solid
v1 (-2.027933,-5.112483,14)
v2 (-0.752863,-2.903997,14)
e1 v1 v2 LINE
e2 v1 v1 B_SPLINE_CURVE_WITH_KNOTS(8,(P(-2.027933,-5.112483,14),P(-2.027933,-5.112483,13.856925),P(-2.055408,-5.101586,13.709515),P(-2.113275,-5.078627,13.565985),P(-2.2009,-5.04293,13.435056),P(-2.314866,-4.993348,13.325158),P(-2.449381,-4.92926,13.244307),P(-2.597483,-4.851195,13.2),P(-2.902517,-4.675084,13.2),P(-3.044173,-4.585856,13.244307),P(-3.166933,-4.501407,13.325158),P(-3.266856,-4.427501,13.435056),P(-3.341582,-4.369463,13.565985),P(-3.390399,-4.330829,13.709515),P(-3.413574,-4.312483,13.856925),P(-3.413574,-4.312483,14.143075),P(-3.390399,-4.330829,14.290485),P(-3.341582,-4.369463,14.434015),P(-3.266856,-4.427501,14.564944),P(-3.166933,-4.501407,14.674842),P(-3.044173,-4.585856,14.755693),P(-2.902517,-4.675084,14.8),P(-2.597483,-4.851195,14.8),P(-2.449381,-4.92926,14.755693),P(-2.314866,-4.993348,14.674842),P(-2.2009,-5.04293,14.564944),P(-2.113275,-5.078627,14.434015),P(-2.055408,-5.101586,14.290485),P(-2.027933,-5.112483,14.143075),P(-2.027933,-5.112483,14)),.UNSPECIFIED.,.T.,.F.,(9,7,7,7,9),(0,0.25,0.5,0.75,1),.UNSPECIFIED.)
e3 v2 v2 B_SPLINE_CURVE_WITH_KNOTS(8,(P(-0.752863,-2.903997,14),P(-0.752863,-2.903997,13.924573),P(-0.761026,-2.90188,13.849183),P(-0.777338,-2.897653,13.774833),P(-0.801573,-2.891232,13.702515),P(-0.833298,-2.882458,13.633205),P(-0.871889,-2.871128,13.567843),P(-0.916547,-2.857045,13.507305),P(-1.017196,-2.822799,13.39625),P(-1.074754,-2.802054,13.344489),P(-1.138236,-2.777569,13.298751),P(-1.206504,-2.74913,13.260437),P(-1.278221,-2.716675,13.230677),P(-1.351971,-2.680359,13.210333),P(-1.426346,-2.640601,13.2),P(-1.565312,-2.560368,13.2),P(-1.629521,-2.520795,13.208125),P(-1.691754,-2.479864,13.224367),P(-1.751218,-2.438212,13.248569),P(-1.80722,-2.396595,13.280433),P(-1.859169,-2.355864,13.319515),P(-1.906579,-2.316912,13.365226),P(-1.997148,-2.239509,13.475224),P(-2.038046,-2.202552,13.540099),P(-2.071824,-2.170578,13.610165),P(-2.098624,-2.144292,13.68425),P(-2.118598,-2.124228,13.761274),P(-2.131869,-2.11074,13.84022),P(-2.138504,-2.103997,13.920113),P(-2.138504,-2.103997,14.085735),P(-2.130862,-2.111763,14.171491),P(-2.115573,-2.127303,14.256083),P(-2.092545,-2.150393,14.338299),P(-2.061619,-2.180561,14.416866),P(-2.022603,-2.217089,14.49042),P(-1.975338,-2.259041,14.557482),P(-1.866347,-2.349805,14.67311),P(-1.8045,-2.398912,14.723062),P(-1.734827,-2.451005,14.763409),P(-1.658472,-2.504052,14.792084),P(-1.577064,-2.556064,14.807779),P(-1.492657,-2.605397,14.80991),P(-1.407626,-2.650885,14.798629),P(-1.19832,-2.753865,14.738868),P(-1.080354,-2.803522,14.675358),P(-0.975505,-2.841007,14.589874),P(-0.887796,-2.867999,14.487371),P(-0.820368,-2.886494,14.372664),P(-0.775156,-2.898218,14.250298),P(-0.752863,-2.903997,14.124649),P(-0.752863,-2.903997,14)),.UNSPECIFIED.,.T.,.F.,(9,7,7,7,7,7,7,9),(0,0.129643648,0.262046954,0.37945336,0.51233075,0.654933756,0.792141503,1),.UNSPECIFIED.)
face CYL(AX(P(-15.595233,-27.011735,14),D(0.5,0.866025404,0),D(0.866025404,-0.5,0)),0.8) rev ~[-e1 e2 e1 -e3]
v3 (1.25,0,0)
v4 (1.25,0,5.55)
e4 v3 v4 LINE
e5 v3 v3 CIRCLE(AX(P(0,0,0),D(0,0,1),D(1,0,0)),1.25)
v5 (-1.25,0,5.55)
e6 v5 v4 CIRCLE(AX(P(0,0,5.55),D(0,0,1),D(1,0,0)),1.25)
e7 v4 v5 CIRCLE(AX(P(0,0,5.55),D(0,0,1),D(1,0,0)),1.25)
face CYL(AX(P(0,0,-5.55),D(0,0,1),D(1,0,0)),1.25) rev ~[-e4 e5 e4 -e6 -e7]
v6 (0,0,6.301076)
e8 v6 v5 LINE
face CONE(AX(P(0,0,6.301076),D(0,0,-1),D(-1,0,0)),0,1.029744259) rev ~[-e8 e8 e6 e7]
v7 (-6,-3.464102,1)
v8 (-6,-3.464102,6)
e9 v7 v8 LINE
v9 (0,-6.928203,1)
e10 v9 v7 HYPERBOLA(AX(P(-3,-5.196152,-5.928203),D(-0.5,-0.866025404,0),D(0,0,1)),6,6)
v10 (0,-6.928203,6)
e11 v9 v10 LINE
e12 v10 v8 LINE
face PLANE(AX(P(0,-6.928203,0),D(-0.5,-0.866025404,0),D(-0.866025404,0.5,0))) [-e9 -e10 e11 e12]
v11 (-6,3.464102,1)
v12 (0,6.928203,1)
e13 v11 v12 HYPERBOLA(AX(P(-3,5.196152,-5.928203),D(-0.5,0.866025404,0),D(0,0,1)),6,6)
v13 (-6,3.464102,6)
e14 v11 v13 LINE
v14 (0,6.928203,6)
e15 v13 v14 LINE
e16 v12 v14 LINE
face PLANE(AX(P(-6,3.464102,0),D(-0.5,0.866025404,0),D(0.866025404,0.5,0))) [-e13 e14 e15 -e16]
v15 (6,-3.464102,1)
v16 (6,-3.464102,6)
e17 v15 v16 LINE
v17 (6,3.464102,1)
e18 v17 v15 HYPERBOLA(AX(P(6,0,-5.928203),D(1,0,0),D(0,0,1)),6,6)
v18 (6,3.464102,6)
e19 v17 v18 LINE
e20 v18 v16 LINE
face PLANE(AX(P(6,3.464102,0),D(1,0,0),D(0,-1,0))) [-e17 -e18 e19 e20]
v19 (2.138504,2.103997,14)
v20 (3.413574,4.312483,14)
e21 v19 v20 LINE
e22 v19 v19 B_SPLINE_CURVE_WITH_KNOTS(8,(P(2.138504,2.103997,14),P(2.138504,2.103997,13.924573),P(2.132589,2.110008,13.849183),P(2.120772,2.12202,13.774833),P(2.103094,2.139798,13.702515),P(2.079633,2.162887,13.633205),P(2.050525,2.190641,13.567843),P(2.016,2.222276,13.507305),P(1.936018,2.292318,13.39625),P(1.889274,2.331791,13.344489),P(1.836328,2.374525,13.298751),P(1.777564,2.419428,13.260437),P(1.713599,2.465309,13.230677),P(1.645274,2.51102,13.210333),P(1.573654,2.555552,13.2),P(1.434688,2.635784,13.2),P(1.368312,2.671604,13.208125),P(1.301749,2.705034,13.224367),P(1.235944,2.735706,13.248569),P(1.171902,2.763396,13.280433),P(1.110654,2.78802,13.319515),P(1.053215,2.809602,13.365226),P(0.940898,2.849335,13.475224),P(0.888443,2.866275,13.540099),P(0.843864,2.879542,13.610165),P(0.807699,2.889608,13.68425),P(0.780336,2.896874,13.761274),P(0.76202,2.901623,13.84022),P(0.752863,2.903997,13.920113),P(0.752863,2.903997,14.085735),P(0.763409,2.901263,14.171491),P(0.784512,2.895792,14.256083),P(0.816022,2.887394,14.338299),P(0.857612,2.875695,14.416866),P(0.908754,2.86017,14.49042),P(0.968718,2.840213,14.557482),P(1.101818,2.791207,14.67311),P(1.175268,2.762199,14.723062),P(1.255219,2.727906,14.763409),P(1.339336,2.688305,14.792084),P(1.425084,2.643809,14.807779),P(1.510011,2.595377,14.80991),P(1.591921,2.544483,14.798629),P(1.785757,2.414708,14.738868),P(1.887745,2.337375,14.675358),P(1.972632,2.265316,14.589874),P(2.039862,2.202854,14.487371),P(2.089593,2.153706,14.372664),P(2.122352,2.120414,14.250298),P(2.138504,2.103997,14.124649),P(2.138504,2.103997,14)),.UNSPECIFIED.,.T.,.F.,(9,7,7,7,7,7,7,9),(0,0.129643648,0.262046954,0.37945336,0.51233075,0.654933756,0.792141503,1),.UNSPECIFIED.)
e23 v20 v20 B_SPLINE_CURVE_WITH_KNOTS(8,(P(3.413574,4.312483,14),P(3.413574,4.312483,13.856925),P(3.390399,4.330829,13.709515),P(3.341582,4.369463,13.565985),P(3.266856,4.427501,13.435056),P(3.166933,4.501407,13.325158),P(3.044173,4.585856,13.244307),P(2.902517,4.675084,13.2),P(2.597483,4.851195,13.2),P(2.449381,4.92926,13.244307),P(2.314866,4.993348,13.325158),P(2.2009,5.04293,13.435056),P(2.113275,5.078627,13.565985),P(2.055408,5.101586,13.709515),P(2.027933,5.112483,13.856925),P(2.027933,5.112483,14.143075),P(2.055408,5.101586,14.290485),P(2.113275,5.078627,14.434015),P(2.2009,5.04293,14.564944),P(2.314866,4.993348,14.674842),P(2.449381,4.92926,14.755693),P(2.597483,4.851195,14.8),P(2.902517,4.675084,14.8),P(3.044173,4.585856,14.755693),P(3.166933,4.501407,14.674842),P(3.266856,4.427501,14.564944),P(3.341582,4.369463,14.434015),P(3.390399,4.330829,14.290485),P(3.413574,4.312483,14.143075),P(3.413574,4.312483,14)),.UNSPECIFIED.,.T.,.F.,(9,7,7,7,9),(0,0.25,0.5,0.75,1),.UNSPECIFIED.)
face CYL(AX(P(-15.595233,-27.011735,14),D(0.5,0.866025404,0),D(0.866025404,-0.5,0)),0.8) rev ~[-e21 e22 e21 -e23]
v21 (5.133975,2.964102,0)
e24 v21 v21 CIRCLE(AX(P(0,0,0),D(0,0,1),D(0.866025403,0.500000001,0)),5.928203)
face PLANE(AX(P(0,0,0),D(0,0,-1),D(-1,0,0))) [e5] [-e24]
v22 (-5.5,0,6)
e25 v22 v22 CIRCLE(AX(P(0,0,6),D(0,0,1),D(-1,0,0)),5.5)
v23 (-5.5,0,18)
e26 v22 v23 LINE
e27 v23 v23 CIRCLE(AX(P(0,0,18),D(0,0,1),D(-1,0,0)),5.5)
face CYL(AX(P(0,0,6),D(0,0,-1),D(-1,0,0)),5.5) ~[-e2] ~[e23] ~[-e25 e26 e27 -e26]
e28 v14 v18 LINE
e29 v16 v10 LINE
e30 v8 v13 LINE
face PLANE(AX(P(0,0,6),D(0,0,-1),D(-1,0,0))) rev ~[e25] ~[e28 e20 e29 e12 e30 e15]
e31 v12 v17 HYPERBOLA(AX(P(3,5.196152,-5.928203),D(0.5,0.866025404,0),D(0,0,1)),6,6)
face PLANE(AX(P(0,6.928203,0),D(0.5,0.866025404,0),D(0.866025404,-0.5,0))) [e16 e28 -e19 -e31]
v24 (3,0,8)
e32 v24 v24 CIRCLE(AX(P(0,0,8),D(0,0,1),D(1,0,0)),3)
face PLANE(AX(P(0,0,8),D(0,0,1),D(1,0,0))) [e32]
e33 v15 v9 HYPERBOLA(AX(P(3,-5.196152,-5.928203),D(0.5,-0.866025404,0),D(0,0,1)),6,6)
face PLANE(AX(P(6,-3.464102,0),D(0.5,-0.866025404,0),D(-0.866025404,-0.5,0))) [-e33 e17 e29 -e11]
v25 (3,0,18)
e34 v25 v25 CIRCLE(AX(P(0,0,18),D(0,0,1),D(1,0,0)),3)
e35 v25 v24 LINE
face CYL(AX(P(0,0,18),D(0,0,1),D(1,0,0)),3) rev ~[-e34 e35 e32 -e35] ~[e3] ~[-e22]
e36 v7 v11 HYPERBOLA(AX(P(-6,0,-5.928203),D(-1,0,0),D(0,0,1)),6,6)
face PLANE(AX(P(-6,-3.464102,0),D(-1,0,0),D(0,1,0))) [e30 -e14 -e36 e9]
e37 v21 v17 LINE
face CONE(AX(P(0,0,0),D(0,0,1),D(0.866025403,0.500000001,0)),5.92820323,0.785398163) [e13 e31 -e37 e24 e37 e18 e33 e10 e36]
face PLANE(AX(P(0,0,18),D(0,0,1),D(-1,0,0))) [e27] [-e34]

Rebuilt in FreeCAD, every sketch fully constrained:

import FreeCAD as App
import Part
import Sketcher
from FreeCAD import Vector
Q = App.Units.Quantity

doc = App.newDocument("Part")
body = doc.addObject("PartDesign::Body", "Body")

# Sketch on XY plane
sketch1 = body.newObject("Sketcher::SketchObject", "Sketch")
sketch1.AttachmentSupport = (doc.getObject("XY_Plane"), [""])
sketch1.MapMode = "FlatFace"
sketch1.addGeometry(Part.LineSegment(Vector(0, 7, 0), Vector(-6, 3, 0)), False)
sketch1.addGeometry(Part.LineSegment(Vector(-6, 3, 0), Vector(-6, -3, 0)), False)
sketch1.addGeometry(Part.LineSegment(Vector(-6, -3, 0), Vector(0, -7, 0)), False)
sketch1.addGeometry(Part.LineSegment(Vector(0, -7, 0), Vector(6, -3, 0)), False)
sketch1.addGeometry(Part.LineSegment(Vector(6, -3, 0), Vector(6, 3, 0)), False)
sketch1.addGeometry(Part.LineSegment(Vector(6, 3, 0), Vector(0, 7, 0)), False)
sketch1.addConstraint(Sketcher.Constraint("Coincident", 0, 2, 1, 1))
sketch1.addConstraint(Sketcher.Constraint("Coincident", 1, 2, 2, 1))
sketch1.addConstraint(Sketcher.Constraint("Coincident", 2, 2, 3, 1))
sketch1.addConstraint(Sketcher.Constraint("Coincident", 3, 2, 4, 1))
sketch1.addConstraint(Sketcher.Constraint("Coincident", 4, 2, 5, 1))
sketch1.addConstraint(Sketcher.Constraint("Coincident", 5, 2, 0, 1))
sketch1.addConstraint(Sketcher.Constraint("Vertical", 1))
sketch1.addConstraint(Sketcher.Constraint("Vertical", 4))
sketch1.addConstraint(Sketcher.Constraint("Symmetric", 0, 2, 3, 2, -1, 1))
sketch1.addConstraint(Sketcher.Constraint("Symmetric", 2, 2, 5, 2, -1, 1))
sketch1.addConstraint(Sketcher.Constraint("PointOnObject", 2, 2, -2))
sketch1.addConstraint(Sketcher.Constraint("Parallel", 2, 5))
sketch1.addConstraint(Sketcher.Constraint("Horizontal", 1, 2, 3, 2))
sketch1.addConstraint(Sketcher.Constraint("Angle", 0, Q("-150 deg")))
sketch1.addConstraint(Sketcher.Constraint("DistanceX", 0, 2, -1, 1, 6.0))
sketch1.addConstraint(Sketcher.Constraint("DistanceY", -1, 1, 0, 2, 3.464102))
pad1 = body.newObject("PartDesign::Pad", "Pad")
pad1.Profile = sketch1
pad1.Length = 6

# Sketch on XY plane
sketch2 = body.newObject("Sketcher::SketchObject", "Sketch001")
sketch2.AttachmentSupport = (doc.getObject("XY_Plane"), [""])
sketch2.MapMode = "FlatFace"
sketch2.AttachmentOffset = App.Placement(Vector(0, 0, 6), App.Rotation())
sketch2.addGeometry(Part.Circle(Vector(0, 0, 0), Vector(0, 0, 1), 6), False)
sketch2.addConstraint(Sketcher.Constraint("Coincident", 0, 3, -1, 1))
sketch2.addConstraint(Sketcher.Constraint("Diameter", 0, 11.0))
pad2 = body.newObject("PartDesign::Pad", "Pad001")
pad2.Profile = sketch2
pad2.Length = 12

# Sketch on XY plane
sketch3 = body.newObject("Sketcher::SketchObject", "Sketch002")
sketch3.AttachmentSupport = (doc.getObject("XY_Plane"), [""])
sketch3.MapMode = "FlatFace"
sketch3.addGeometry(Part.Circle(Vector(0, 0, 0), Vector(0, 0, 1), 1.2), False)
sketch3.addConstraint(Sketcher.Constraint("Coincident", 0, 3, -1, 1))
sketch3.addConstraint(Sketcher.Constraint("Diameter", 0, 2.5))
doc.recompute()
hole = body.newObject("PartDesign::Hole", "Hole")
hole.Profile = sketch3
hole.ThreadType = "None"
hole.Diameter = 2.5
hole.DepthType = "Dimension"
hole.Depth = 5.55
hole.DrillPoint = "Angled"
hole.DrillPointAngle = 118
hole.Reversed = True

# Sketch on an angled plane
sketch4 = body.newObject("Sketcher::SketchObject", "Sketch003")
sketch4.Placement = App.Placement(Vector(-2.75, -4.76314, 0), App.Rotation(Vector(-0.866025404, 0.5, 0), Vector(0, 0, -1), Vector(-0.5, -0.866025404, 0), "ZXY"))
sketch4.addGeometry(Part.Circle(Vector(0, -14, 0), Vector(0, 0, 1), 0.8), False)
sketch4.addConstraint(Sketcher.Constraint("PointOnObject", 0, 3, -2))
sketch4.addConstraint(Sketcher.Constraint("Diameter", 0, 1.6))
sketch4.addConstraint(Sketcher.Constraint("DistanceY", 0, 3, -1, 1, 14.0))
doc.recompute()
hole2 = body.newObject("PartDesign::Hole", "Hole001")
hole2.Profile = sketch4
hole2.ThreadType = "None"
hole2.Diameter = 1.6
hole2.DepthType = "ThroughAll"

# Sketch on an angled plane
sketch5 = body.newObject("Sketcher::SketchObject", "Sketch004")
sketch5.Placement = App.Placement(Vector(0, 0, 0), App.Rotation(Vector(-0.866025404, 0.5, 0), Vector(0, 0, -1), Vector(-0.5, -0.866025404, 0), "ZXY"))
sketch5.addGeometry(Part.LineSegment(Vector(6.9, 0, 0), Vector(5.9, 0, 0)), False)
sketch5.addGeometry(Part.LineSegment(Vector(5.9, 0, 0), Vector(6.9, -1, 0)), False)
sketch5.addGeometry(Part.LineSegment(Vector(6.9, -1, 0), Vector(6.9, 0, 0)), False)
sketch5.addConstraint(Sketcher.Constraint("Coincident", 0, 2, 1, 1))
sketch5.addConstraint(Sketcher.Constraint("Coincident", 1, 2, 2, 1))
sketch5.addConstraint(Sketcher.Constraint("Coincident", 2, 2, 0, 1))
sketch5.addConstraint(Sketcher.Constraint("Horizontal", 0))
sketch5.addConstraint(Sketcher.Constraint("Vertical", 2))
sketch5.addConstraint(Sketcher.Constraint("PointOnObject", 0, 2, -1))
sketch5.addConstraint(Sketcher.Constraint("Equal", 0, 2))
sketch5.addConstraint(Sketcher.Constraint("DistanceX", 0, 2, 0, 1, 1.0))
sketch5.addConstraint(Sketcher.Constraint("DistanceX", -1, 1, 0, 2, 5.928203))
groove = body.newObject("PartDesign::Groove", "Groove")
groove.Profile = sketch5
groove.ReferenceAxis = (sketch5, ["V_Axis"])
groove.Angle = 360

# Sketch on XY plane
sketch6 = body.newObject("Sketcher::SketchObject", "Sketch005")
sketch6.AttachmentSupport = (doc.getObject("XY_Plane"), [""])
sketch6.MapMode = "FlatFace"
sketch6.AttachmentOffset = App.Placement(Vector(0, 0, 18), App.Rotation())
sketch6.addGeometry(Part.Circle(Vector(0, 0, 0), Vector(0, 0, 1), 3), False)
sketch6.addConstraint(Sketcher.Constraint("Coincident", 0, 3, -1, 1))
sketch6.addConstraint(Sketcher.Constraint("Diameter", 0, 6.0))
pocket1 = body.newObject("PartDesign::Pocket", "Pocket")
pocket1.Profile = sketch6
pocket1.Length = 10

doc.recompute()
